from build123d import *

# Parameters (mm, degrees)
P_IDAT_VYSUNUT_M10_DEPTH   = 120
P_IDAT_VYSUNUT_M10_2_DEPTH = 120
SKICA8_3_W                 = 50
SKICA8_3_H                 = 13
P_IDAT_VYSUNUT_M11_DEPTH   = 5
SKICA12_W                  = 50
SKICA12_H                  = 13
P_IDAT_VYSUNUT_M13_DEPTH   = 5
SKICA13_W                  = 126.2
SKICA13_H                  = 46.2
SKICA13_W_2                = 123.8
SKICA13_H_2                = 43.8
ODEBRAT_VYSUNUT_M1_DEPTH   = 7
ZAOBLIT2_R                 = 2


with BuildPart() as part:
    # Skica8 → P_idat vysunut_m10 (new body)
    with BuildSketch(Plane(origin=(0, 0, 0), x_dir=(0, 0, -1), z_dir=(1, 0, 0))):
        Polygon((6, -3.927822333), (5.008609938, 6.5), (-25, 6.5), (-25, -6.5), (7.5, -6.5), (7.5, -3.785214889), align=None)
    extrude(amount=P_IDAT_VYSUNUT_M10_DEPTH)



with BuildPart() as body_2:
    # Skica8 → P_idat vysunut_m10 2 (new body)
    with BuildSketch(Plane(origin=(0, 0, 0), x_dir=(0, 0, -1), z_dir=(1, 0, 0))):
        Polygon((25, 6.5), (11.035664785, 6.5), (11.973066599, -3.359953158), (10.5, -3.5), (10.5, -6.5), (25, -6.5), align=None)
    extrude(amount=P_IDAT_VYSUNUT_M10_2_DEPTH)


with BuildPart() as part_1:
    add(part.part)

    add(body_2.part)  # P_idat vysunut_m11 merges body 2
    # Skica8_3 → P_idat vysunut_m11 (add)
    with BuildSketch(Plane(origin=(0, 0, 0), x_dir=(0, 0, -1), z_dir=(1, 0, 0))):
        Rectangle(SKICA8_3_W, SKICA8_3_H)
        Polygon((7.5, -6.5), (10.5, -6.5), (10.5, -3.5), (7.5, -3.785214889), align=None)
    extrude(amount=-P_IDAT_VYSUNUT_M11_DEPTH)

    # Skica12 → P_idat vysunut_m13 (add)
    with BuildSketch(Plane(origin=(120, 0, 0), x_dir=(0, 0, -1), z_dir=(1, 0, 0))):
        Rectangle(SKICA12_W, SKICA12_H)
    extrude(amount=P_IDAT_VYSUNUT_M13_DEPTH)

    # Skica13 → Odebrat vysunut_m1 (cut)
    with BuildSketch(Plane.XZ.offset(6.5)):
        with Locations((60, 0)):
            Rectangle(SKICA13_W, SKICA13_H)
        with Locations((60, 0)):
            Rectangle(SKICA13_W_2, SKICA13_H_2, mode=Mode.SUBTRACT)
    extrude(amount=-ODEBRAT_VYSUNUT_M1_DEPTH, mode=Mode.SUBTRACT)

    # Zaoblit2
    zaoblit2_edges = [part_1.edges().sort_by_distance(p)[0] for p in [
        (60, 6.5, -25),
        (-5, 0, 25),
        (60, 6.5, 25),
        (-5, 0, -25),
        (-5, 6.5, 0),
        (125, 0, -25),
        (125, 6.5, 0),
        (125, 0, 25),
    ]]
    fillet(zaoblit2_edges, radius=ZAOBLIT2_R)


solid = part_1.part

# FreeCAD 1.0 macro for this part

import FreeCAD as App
import Part
import Sketcher
Q = App.Units.Quantity


def edges_at(feature, points):
    """Names of the edges that pass closest to the given points."""
    edges = feature.Shape.Edges
    near = lambda p: min(range(len(edges)), key=lambda i: edges[i].distToShape(Part.Vertex(*p))[0])
    return sorted({f"Edge{near(p) + 1}" for p in points})


def add_polygon(sketch, points):
    """Adds a closed chain of lines whose ends are joined by coincident constraints."""
    first, n = sketch.GeometryCount, len(points)
    for a, b in zip(points, points[1:] + points[:1]):
        sketch.addGeometry(Part.LineSegment(App.Vector(*a, 0), App.Vector(*b, 0)), False)
    for i in range(n):
        sketch.addConstraint(Sketcher.Constraint("Coincident", first + i, 2, first + (i + 1) % n, 1))

doc = App.newDocument("Part")
body = doc.addObject("PartDesign::Body", "Body")

sketch1 = body.newObject("Sketcher::SketchObject", "Sketch")
sketch1.AttachmentSupport = (doc.getObject("YZ_Plane"), [""])
sketch1.MapMode = "FlatFace"
add_polygon(sketch1, [(-3.9, -6), (6.5, -5), (6.5, 25), (-6.5, 25), (-6.5, -7.5), (-3.8, -7.5)])
sketch1.addConstraint([
    Sketcher.Constraint("Vertical", 1),
    Sketcher.Constraint("Horizontal", 2),
    Sketcher.Constraint("Vertical", 3),
    Sketcher.Constraint("Horizontal", 4),
    Sketcher.Constraint("Perpendicular", 0, 5),
    Sketcher.Constraint("DistanceX", 2, 2, 2, 1, Q("13 mm")),
    Sketcher.Constraint("DistanceY", 3, 2, 3, 1, Q("32.5 mm")),
    Sketcher.Constraint("DistanceY", -1, 1, 1, 2, Q("25 mm")),
    Sketcher.Constraint("DistanceY", 5, 2, -1, 1, Q("6 mm")),
    Sketcher.Constraint("DistanceX", -1, 1, 0, 2, Q("6.5 mm")),
    Sketcher.Constraint("DistanceY", 1, 1, 1, 2, Q("30.00861 mm")),
    Sketcher.Constraint("DistanceX", 4, 1, 4, 2, Q("2.714785 mm")),
])
pad1 = body.newObject("PartDesign::Pad", "Pad")
pad1.Profile = sketch1
pad1.Length = 120
body2 = doc.addObject("PartDesign::Body", "Body001")

sketch2 = body2.newObject("Sketcher::SketchObject", "Sketch001")
sketch2.AttachmentSupport = (doc.getObject("YZ_Plane001"), [""])
sketch2.MapMode = "FlatFace"
add_polygon(sketch2, [(6.5, -25), (6.5, -11), (-3.4, -12), (-3.5, -10.5), (-6.5, -10.5), (-6.5, -25)])
sketch2.addConstraint([
    Sketcher.Constraint("Vertical", 0),
    Sketcher.Constraint("Horizontal", 3),
    Sketcher.Constraint("Vertical", 4),
    Sketcher.Constraint("Horizontal", 5),
    Sketcher.Constraint("Perpendicular", 1, 2),
    Sketcher.Constraint("DistanceX", 3, 2, 3, 1, Q("3 mm")),
    Sketcher.Constraint("DistanceX", 5, 1, 5, 2, Q("13 mm")),
    Sketcher.Constraint("DistanceY", 4, 2, 4, 1, Q("14.5 mm")),
    Sketcher.Constraint("DistanceY", 4, 2, -1, 1, Q("25 mm")),
    Sketcher.Constraint("DistanceX", -1, 1, 0, 2, Q("6.5 mm")),
    Sketcher.Constraint("DistanceY", 1, 2, 0, 2, Q("0.937402 mm")),
    Sketcher.Constraint("Distance", 2, Q("1.479709 mm")),
])
pad2 = body2.newObject("PartDesign::Pad", "Pad001")
pad2.Profile = sketch2
pad2.Length = 120
body.AllowCompound = True
doc.recompute()

boolean = body.newObject("PartDesign::Boolean", "Boolean")
boolean.Type = "Fuse"
boolean.addObjects([body2])

sketch3 = body.newObject("Sketcher::SketchObject", "Sketch002")
sketch3.AttachmentSupport = (doc.getObject("YZ_Plane"), [""])
sketch3.MapMode = "FlatFace"
add_polygon(sketch3, [(6, 25), (-6, 25), (-6, -25), (6, -25)])
sketch3.addConstraint([
    Sketcher.Constraint("Horizontal", 0),
    Sketcher.Constraint("Vertical", 1),
    Sketcher.Constraint("Horizontal", 2),
    Sketcher.Constraint("Vertical", 3),
    Sketcher.Constraint("Symmetric", 0, 2, 2, 2, -1, 1),
    Sketcher.Constraint("DistanceX", 0, 2, 0, 1, Q("13 mm")),
    Sketcher.Constraint("DistanceY", 1, 2, 1, 1, Q("50 mm")),
])
pad3 = body.newObject("PartDesign::Pad", "Pad002")
pad3.Profile = sketch3
pad3.Length = 5
pad3.Reversed = True

sketch4 = body.newObject("Sketcher::SketchObject", "Sketch003")
sketch4.AttachmentSupport = (doc.getObject("YZ_Plane"), [""])
sketch4.MapMode = "FlatFace"
sketch4.AttachmentOffset = App.Placement(App.Vector(0, 0, 120), App.Rotation())
add_polygon(sketch4, [(6, 25), (-6, 25), (-6, -25), (6, -25)])
sketch4.addConstraint([
    Sketcher.Constraint("Horizontal", 0),
    Sketcher.Constraint("Vertical", 1),
    Sketcher.Constraint("Horizontal", 2),
    Sketcher.Constraint("Vertical", 3),
    Sketcher.Constraint("Symmetric", 0, 2, 2, 2, -1, 1),
    Sketcher.Constraint("DistanceX", 0, 2, 0, 1, Q("13 mm")),
    Sketcher.Constraint("DistanceY", 1, 2, 1, 1, Q("50 mm")),
])
pad4 = body.newObject("PartDesign::Pad", "Pad003")
pad4.Profile = sketch4
pad4.Length = 5

sketch5 = body.newObject("Sketcher::SketchObject", "Sketch004")
sketch5.AttachmentSupport = (doc.getObject("XZ_Plane"), [""])
sketch5.MapMode = "FlatFace"
sketch5.AttachmentOffset = App.Placement(App.Vector(0, 0, 6.5), App.Rotation())
add_polygon(sketch5, [(-3, 23), (-3, -23), (123, -23), (123, 23)])
add_polygon(sketch5, [(122, -22), (-2, -22), (-2, 22), (122, 22)])
sketch5.addConstraint([
    Sketcher.Constraint("Vertical", 0),
    Sketcher.Constraint("Horizontal", 1),
    Sketcher.Constraint("Vertical", 2),
    Sketcher.Constraint("Horizontal", 3),
    Sketcher.Constraint("Horizontal", 4),
    Sketcher.Constraint("Vertical", 5),
    Sketcher.Constraint("Horizontal", 6),
    Sketcher.Constraint("Vertical", 7),
    Sketcher.Constraint("DistanceX", 1, 1, 1, 2, Q("126.2 mm")),
    Sketcher.Constraint("DistanceX", 4, 2, 4, 1, Q("123.8 mm")),
    Sketcher.Constraint("DistanceY", 0, 2, 0, 1, Q("46.2 mm")),
    Sketcher.Constraint("DistanceY", 5, 1, 5, 2, Q("43.8 mm")),
    Sketcher.Constraint("DistanceY", 4, 2, 3, 2, Q("45 mm")),
    Sketcher.Constraint("DistanceX", 4, 2, 1, 2, Q("125 mm")),
    Sketcher.Constraint("DistanceX", 0, 2, -1, 1, Q("3.1 mm")),
    Sketcher.Constraint("DistanceY", 0, 2, -1, 1, Q("23.1 mm")),
])
pocket1 = body.newObject("PartDesign::Pocket", "Pocket")
pocket1.Profile = sketch5
pocket1.Length = 7
doc.recompute()

fillet = body.newObject("PartDesign::Fillet", "Fillet")
fillet.Base = (pocket1, edges_at(pocket1, [
    (60, 6.5, -25),
    (-5, 0, 25),
    (60, 6.5, 25),
    (-5, 0, -25),
    (-5, 6.5, 0),
    (125, 0, -25),
    (125, 6.5, 0),
    (125, 0, 25),
]))
fillet.Radius = 2

doc.recompute()
